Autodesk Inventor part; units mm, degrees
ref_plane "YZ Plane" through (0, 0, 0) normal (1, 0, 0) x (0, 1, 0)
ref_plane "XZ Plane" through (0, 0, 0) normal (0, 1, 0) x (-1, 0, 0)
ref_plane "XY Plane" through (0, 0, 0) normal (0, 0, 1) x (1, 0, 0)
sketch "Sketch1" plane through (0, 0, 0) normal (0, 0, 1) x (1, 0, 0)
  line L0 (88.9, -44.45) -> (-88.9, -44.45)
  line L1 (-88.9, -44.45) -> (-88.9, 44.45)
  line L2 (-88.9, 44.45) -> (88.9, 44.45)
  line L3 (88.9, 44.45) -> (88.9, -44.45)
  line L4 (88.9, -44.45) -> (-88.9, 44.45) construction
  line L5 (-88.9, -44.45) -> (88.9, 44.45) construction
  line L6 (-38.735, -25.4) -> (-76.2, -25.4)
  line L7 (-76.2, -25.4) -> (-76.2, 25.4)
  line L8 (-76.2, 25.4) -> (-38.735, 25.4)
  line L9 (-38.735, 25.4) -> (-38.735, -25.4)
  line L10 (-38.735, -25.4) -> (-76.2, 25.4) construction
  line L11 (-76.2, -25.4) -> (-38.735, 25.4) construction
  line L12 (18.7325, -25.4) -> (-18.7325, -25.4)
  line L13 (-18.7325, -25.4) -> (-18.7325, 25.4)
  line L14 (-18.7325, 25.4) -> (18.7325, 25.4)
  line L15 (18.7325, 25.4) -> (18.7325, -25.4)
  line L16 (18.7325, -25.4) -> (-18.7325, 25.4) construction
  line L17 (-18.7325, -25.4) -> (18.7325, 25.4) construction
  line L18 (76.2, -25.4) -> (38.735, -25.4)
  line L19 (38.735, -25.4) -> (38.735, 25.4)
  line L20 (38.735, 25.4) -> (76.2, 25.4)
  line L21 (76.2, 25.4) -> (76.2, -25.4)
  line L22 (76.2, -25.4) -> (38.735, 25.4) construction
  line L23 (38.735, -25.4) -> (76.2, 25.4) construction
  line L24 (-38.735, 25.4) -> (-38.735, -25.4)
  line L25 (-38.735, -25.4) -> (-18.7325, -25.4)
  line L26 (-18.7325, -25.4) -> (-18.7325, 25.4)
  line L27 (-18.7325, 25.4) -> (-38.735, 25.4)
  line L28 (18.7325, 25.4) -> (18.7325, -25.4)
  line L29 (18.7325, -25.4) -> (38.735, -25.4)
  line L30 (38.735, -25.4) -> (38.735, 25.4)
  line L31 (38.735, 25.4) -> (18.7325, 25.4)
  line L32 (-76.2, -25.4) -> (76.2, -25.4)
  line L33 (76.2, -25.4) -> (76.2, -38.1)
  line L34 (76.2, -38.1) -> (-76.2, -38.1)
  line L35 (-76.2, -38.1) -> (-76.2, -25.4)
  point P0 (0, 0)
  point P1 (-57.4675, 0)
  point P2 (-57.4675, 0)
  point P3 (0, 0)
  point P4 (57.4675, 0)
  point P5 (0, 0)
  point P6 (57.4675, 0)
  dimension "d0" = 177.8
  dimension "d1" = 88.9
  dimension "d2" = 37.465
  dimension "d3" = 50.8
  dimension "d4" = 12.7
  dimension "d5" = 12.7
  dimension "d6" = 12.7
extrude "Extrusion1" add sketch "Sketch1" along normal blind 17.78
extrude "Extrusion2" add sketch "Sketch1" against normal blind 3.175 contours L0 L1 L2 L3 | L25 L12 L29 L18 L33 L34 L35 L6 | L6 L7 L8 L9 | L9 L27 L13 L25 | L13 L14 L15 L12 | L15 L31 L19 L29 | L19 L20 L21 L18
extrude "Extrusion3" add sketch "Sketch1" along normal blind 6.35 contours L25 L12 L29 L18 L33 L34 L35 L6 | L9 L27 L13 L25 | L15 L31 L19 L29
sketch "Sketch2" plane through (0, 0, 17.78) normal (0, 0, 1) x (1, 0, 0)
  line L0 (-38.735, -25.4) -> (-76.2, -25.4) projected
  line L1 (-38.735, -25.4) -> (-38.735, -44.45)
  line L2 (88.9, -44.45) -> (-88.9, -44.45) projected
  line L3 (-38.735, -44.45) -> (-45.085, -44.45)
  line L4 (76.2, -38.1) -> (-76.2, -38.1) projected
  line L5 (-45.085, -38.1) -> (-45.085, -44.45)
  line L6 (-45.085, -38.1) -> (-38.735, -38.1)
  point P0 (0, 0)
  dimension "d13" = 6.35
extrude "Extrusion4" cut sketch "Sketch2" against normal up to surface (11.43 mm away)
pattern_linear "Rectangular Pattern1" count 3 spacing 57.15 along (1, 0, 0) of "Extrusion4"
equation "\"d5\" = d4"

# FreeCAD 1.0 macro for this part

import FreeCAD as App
import Part
import Sketcher
from FreeCAD import Vector
Q = App.Units.Quantity


def add_polygon(sketch, points):
    """Adds a closed chain of lines whose ends are joined by coincident constraints."""
    first, n = sketch.GeometryCount, len(points)
    for a, b in zip(points, points[1:] + points[:1]):
        sketch.addGeometry(Part.LineSegment(App.Vector(*a, 0), App.Vector(*b, 0)), False)
    for i in range(n):
        sketch.addConstraint(Sketcher.Constraint("Coincident", first + i, 2, first + (i + 1) % n, 1))

doc = App.newDocument("Part")
body = doc.addObject("PartDesign::Body", "Body")

# Sketch on XY plane
sketch1 = body.newObject("Sketcher::SketchObject", "Sketch")
sketch1.AttachmentSupport = (doc.getObject("XY_Plane"), [""])
sketch1.MapMode = "FlatFace"
add_polygon(sketch1, [(-89, -44), (89, -44), (89, 44), (-89, 44)])  # lines 0-3
add_polygon(sketch1, [(-76, -38), (-76, 25), (76, 25), (76, -38)])  # lines 4-7
sketch1.addConstraint([
    Sketcher.Constraint("Horizontal", 0),
    Sketcher.Constraint("Vertical", 1),
    Sketcher.Constraint("Horizontal", 2),
    Sketcher.Constraint("Vertical", 3),
    Sketcher.Constraint("Vertical", 4),
    Sketcher.Constraint("Horizontal", 5),
    Sketcher.Constraint("Vertical", 6),
    Sketcher.Constraint("Horizontal", 7),
    Sketcher.Constraint("Symmetric", 0, 2, 2, 2, -1, 1),
    Sketcher.Constraint("DistanceX", 0, 1, 0, 2, Q("7 in")),
    Sketcher.Constraint("DistanceY", 1, 1, 1, 2, Q("3.5 in")),
    Sketcher.Constraint("DistanceX", 2, 2, 4, 2, Q("0.5 in")),
    Sketcher.Constraint("DistanceX", 5, 2, 1, 2, Q("0.5 in")),
    Sketcher.Constraint("DistanceY", 4, 1, 4, 2, Q("2.5 in")),
    Sketcher.Constraint("DistanceY", -1, 1, 4, 2, Q("1 in")),
])
pad1 = body.newObject("PartDesign::Pad", "Pad")
pad1.Profile = sketch1
pad1.Length = Q("0.7 in")

# Sketch on XY plane
sketch2 = body.newObject("Sketcher::SketchObject", "Sketch001")
sketch2.AttachmentSupport = (doc.getObject("XY_Plane"), [""])
sketch2.MapMode = "FlatFace"
add_polygon(sketch2, [(-89, -44), (89, -44), (89, 44), (-89, 44)])  # lines 0-3
sketch2.addConstraint([
    Sketcher.Constraint("Horizontal", 0),
    Sketcher.Constraint("Vertical", 1),
    Sketcher.Constraint("Horizontal", 2),
    Sketcher.Constraint("Vertical", 3),
    Sketcher.Constraint("Symmetric", 0, 2, 2, 2, -1, 1),
    Sketcher.Constraint("DistanceX", 0, 1, 0, 2, Q("7 in")),
    Sketcher.Constraint("DistanceY", 1, 1, 1, 2, Q("3.5 in")),
])
pad2 = body.newObject("PartDesign::Pad", "Pad001")
pad2.Profile = sketch2
pad2.Length = Q("0.125 in")
pad2.Reversed = True

# Sketch on XY plane
sketch3 = body.newObject("Sketcher::SketchObject", "Sketch002")
sketch3.AttachmentSupport = (doc.getObject("XY_Plane"), [""])
sketch3.MapMode = "FlatFace"
add_polygon(sketch3, [(19, -25), (-19, -25), (-19, 25), (-39, 25), (-39, -25), (-76, -25), (-76, -38), (76, -38), (76, -25), (39, -25), (39, 25), (19, 25)])  # lines 0-11
sketch3.addConstraint([
    Sketcher.Constraint("Horizontal", 0),
    Sketcher.Constraint("Vertical", 1),
    Sketcher.Constraint("Horizontal", 2),
    Sketcher.Constraint("Vertical", 3),
    Sketcher.Constraint("Horizontal", 4),
    Sketcher.Constraint("Vertical", 5),
    Sketcher.Constraint("Horizontal", 6),
    Sketcher.Constraint("Vertical", 7),
    Sketcher.Constraint("Horizontal", 8),
    Sketcher.Constraint("Vertical", 9),
    Sketcher.Constraint("Horizontal", 10),
    Sketcher.Constraint("Vertical", 11),
    Sketcher.Constraint("Symmetric", 2, 2, 8, 2, -1, 1),
    Sketcher.Constraint("Symmetric", 0, 2, 10, 2, -1, 1),
    Sketcher.Constraint("Symmetric", 4, 2, 7, 2, -2),
    Sketcher.Constraint("Horizontal", 0, 2, 3, 2),
    Sketcher.Constraint("Equal", 0, 4),
    Sketcher.Constraint("DistanceY", 1, 1, 1, 2, Q("2 in")),
    Sketcher.Constraint("DistanceY", 5, 2, 5, 1, Q("0.5 in")),
    Sketcher.Constraint("DistanceX", 0, 2, 0, 1, Q("1.475 in")),
    Sketcher.Constraint("DistanceX", 6, 1, 6, 2, Q("6 in")),
])
pad3 = body.newObject("PartDesign::Pad", "Pad002")
pad3.Profile = sketch3
pad3.Length = Q("0.25 in")

# Sketch on XY plane
sketch4 = body.newObject("Sketcher::SketchObject", "Sketch003")
sketch4.AttachmentSupport = (doc.getObject("XY_Plane"), [""])
sketch4.MapMode = "FlatFace"
sketch4.AttachmentOffset = App.Placement(Vector(0, 0, 0.7 * 25.4), App.Rotation())
add_polygon(sketch4, [(-39, -44), (-39, -38), (-45, -38), (-45, -44)])  # lines 0-3
sketch4.addConstraint([
    Sketcher.Constraint("Vertical", 0),
    Sketcher.Constraint("Horizontal", 1),
    Sketcher.Constraint("Vertical", 2),
    Sketcher.Constraint("Horizontal", 3),
    Sketcher.Constraint("Equal", 3, 0),
    Sketcher.Constraint("DistanceX", 1, 2, 1, 1, Q("0.25 in")),
    Sketcher.Constraint("DistanceY", 0, 2, -1, 1, Q("1.5 in")),
    Sketcher.Constraint("DistanceX", 0, 2, -1, 1, Q("1.525 in")),
])
pocket1 = body.newObject("PartDesign::Pocket", "Pocket")
pocket1.Profile = sketch4
pocket1.Length = Q("0.45 in")
doc.recompute()

linearpattern = body.newObject("PartDesign::LinearPattern", "LinearPattern")
linearpattern.Originals = [pocket1]
linearpattern.Direction = (doc.getObject("X_Axis"), [""])
linearpattern.Mode = "offset"
linearpattern.Offset = Q("2.25 in")
linearpattern.Occurrences = 3
body.Tip = linearpattern

doc.recompute()
